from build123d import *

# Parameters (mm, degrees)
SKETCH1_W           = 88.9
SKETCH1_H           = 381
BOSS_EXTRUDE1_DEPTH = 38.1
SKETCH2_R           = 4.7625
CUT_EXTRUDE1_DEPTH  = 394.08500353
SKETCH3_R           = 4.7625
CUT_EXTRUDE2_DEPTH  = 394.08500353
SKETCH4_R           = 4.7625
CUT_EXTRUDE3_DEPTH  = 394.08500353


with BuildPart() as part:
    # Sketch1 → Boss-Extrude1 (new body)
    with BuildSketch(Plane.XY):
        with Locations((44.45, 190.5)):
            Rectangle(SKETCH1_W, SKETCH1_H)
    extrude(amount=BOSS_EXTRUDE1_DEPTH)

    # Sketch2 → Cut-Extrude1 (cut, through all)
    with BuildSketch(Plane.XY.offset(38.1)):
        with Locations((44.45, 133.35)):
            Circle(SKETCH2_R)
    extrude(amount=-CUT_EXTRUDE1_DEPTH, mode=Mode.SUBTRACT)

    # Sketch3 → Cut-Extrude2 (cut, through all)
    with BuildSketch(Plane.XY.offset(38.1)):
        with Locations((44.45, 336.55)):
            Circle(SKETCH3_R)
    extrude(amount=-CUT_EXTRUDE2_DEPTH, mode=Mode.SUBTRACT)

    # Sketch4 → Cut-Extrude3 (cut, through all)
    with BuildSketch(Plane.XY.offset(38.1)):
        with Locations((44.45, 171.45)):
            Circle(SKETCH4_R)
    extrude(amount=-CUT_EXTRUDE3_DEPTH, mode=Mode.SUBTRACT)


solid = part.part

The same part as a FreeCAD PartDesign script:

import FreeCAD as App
import Part
import Sketcher
Q = App.Units.Quantity

doc = App.newDocument("Part")
body = doc.addObject("PartDesign::Body", "Body")

# Sketch on XY plane
sketch1 = doc.addObject("Sketcher::SketchObject", "Sketch")
body.addObject(sketch1)
sketch1.AttachmentSupport = (doc.XY_Plane, [""])
sketch1.MapMode = "FlatFace"
sketch1.addGeometry([
    Part.LineSegment(App.Vector(0, 381, 0), App.Vector(0, 0, 0)),
    Part.LineSegment(App.Vector(0, 0, 0), App.Vector(89, 0, 0)),
    Part.LineSegment(App.Vector(89, 0, 0), App.Vector(89, 381, 0)),
    Part.LineSegment(App.Vector(89, 381, 0), App.Vector(0, 381, 0)),
], False)
sketch1.addConstraint([
    Sketcher.Constraint("Coincident", 0, 2, 1, 1),
    Sketcher.Constraint("Coincident", 1, 2, 2, 1),
    Sketcher.Constraint("Coincident", 2, 2, 3, 1),
    Sketcher.Constraint("Coincident", 3, 2, 0, 1),
    Sketcher.Constraint("Vertical", 0),
    Sketcher.Constraint("Horizontal", 1),
    Sketcher.Constraint("Vertical", 2),
    Sketcher.Constraint("Horizontal", 3),
    Sketcher.Constraint("Coincident", 0, 2, -1, 1),
    Sketcher.Constraint("DistanceY", 0, 2, 0, 1, Q("15 in")),
    Sketcher.Constraint("DistanceX", 1, 1, 1, 2, Q("3.5 in")),
])
pad1 = doc.addObject("PartDesign::Pad", "Pad")
body.addObject(pad1)
pad1.Profile = sketch1
pad1.Length = Q("1.5 in")

# Sketch on XY plane
sketch2 = doc.addObject("Sketcher::SketchObject", "Sketch001")
body.addObject(sketch2)
sketch2.AttachmentSupport = (doc.XY_Plane, [""])
sketch2.MapMode = "FlatFace"
sketch2.AttachmentOffset = App.Placement(App.Vector(0, 0, 1.5 * 25.4), App.Rotation())
sketch2.addGeometry(Part.Circle(App.Vector(44.5, 133.3, 0), App.Vector(0, 0, 1), 4.8), False)
sketch2.addConstraint([
    Sketcher.Constraint("Diameter", 0, Q("0.375 in")),
    Sketcher.Constraint("DistanceX", -1, 1, 0, 3, Q("1.75 in")),
    Sketcher.Constraint("DistanceY", -1, 1, 0, 3, Q("5.25 in")),
])
pocket1 = doc.addObject("PartDesign::Pocket", "Pocket")
body.addObject(pocket1)
pocket1.Profile = sketch2
pocket1.Type = "ThroughAll"

# Sketch on XY plane
sketch3 = doc.addObject("Sketcher::SketchObject", "Sketch002")
body.addObject(sketch3)
sketch3.AttachmentSupport = (doc.XY_Plane, [""])
sketch3.MapMode = "FlatFace"
sketch3.AttachmentOffset = App.Placement(App.Vector(0, 0, 1.5 * 25.4), App.Rotation())
sketch3.addGeometry(Part.Circle(App.Vector(44.5, 336.6, 0), App.Vector(0, 0, 1), 4.8), False)
sketch3.addConstraint([
    Sketcher.Constraint("Diameter", 0, Q("0.375 in")),
    Sketcher.Constraint("DistanceX", -1, 1, 0, 3, Q("1.75 in")),
    Sketcher.Constraint("DistanceY", -1, 1, 0, 3, Q("13.25 in")),
])
pocket2 = doc.addObject("PartDesign::Pocket", "Pocket001")
body.addObject(pocket2)
pocket2.Profile = sketch3
pocket2.Type = "ThroughAll"

# Sketch on XY plane
sketch4 = doc.addObject("Sketcher::SketchObject", "Sketch003")
body.addObject(sketch4)
sketch4.AttachmentSupport = (doc.XY_Plane, [""])
sketch4.MapMode = "FlatFace"
sketch4.AttachmentOffset = App.Placement(App.Vector(0, 0, 1.5 * 25.4), App.Rotation())
sketch4.addGeometry(Part.Circle(App.Vector(44.5, 171.4, 0), App.Vector(0, 0, 1), 4.8), False)
sketch4.addConstraint([
    Sketcher.Constraint("Diameter", 0, Q("0.375 in")),
    Sketcher.Constraint("DistanceX", -1, 1, 0, 3, Q("1.75 in")),
    Sketcher.Constraint("DistanceY", -1, 1, 0, 3, Q("6.75 in")),
])
pocket3 = doc.addObject("PartDesign::Pocket", "Pocket002")
body.addObject(pocket3)
pocket3.Profile = sketch4
pocket3.Type = "ThroughAll"

doc.recompute()
